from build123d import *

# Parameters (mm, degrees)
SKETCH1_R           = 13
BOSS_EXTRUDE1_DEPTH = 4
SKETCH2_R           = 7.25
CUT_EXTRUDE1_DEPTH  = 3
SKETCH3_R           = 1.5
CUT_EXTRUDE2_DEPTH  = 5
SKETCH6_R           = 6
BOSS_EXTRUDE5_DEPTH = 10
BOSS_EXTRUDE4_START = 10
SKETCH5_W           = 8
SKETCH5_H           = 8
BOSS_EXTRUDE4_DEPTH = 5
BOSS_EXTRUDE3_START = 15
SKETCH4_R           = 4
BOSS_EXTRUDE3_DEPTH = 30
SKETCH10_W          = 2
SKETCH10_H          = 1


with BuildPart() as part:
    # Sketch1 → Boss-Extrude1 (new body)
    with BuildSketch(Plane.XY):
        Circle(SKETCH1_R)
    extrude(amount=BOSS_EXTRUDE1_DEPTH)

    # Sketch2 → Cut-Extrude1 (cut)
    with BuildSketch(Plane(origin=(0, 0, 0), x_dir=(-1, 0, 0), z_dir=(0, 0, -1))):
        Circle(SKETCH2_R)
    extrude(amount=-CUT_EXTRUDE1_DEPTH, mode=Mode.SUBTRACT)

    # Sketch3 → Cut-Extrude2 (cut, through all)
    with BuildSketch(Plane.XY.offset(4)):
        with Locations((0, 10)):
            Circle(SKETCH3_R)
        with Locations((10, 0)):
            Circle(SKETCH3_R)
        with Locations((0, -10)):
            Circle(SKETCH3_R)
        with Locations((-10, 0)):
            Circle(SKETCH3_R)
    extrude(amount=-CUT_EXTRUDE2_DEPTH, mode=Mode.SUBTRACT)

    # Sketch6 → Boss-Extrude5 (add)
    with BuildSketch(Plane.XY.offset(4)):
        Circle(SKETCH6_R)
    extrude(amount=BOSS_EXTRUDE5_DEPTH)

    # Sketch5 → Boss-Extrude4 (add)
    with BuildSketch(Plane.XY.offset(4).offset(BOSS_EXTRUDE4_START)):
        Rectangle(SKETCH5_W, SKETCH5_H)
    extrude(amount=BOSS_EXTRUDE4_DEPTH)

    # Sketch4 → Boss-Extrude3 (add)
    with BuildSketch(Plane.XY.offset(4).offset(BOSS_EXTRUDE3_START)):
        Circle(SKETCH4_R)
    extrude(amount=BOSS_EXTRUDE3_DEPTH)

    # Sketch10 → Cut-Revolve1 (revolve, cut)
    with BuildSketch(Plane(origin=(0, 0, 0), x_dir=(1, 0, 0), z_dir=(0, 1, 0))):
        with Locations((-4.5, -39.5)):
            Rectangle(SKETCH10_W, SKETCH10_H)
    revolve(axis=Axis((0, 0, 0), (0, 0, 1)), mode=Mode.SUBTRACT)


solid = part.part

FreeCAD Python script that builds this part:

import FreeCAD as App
import Part
import Sketcher
from FreeCAD import Vector


def add_polygon(sketch, points):
    """Adds a closed chain of lines whose ends are joined by coincident constraints."""
    first, n = sketch.GeometryCount, len(points)
    for a, b in zip(points, points[1:] + points[:1]):
        sketch.addGeometry(Part.LineSegment(App.Vector(*a, 0), App.Vector(*b, 0)), False)
    for i in range(n):
        sketch.addConstraint(Sketcher.Constraint("Coincident", first + i, 2, first + (i + 1) % n, 1))

doc = App.newDocument("Part")
body = doc.addObject("PartDesign::Body", "Body")

sketch1 = body.newObject("Sketcher::SketchObject", "Sketch")
sketch1.AttachmentSupport = (doc.getObject("XY_Plane"), [""])
sketch1.MapMode = "FlatFace"
sketch1.addGeometry(Part.Circle(Vector(0, 0, 0), Vector(0, 0, 1), 13), False)
sketch1.addConstraint(Sketcher.Constraint("Coincident", 0, 3, -1, 1))
sketch1.addConstraint(Sketcher.Constraint("Diameter", 0, 26.0))
pad1 = body.newObject("PartDesign::Pad", "Pad")
pad1.Profile = sketch1
pad1.Length = 4

sketch2 = body.newObject("Sketcher::SketchObject", "Sketch001")
sketch2.AttachmentSupport = (doc.getObject("XY_Plane"), [""])
sketch2.MapMode = "FlatFace"
sketch2.addGeometry(Part.Circle(Vector(0, 0, 0), Vector(0, 0, 1), 7.25), False)
sketch2.addConstraint(Sketcher.Constraint("Coincident", 0, 3, -1, 1))
sketch2.addConstraint(Sketcher.Constraint("Diameter", 0, 14.5))
pocket1 = body.newObject("PartDesign::Pocket", "Pocket")
pocket1.Profile = sketch2
pocket1.Length = 3
pocket1.Reversed = True

sketch3 = body.newObject("Sketcher::SketchObject", "Sketch002")
sketch3.AttachmentSupport = (doc.getObject("XY_Plane"), [""])
sketch3.MapMode = "FlatFace"
sketch3.AttachmentOffset = App.Placement(Vector(0, 0, 4), App.Rotation())
sketch3.addGeometry(Part.Circle(Vector(0, 10, 0), Vector(0, 0, 1), 1.5), False)
sketch3.addGeometry(Part.Circle(Vector(10, 0, 0), Vector(0, 0, 1), 1.5), False)
sketch3.addGeometry(Part.Circle(Vector(0, -10, 0), Vector(0, 0, 1), 1.5), False)
sketch3.addGeometry(Part.Circle(Vector(-10, 0, 0), Vector(0, 0, 1), 1.5), False)
sketch3.addConstraint(Sketcher.Constraint("Equal", 0, 1))
sketch3.addConstraint(Sketcher.Constraint("Equal", 1, 2))
sketch3.addConstraint(Sketcher.Constraint("Equal", 2, 3))
sketch3.addConstraint(Sketcher.Constraint("Symmetric", 0, 3, 2, 3, -1, 1))
sketch3.addConstraint(Sketcher.Constraint("Symmetric", 1, 3, 3, 3, -1, 1))
sketch3.addConstraint(Sketcher.Constraint("PointOnObject", 0, 3, -2))
sketch3.addConstraint(Sketcher.Constraint("PointOnObject", 1, 3, -1))
sketch3.addConstraint(Sketcher.Constraint("Diameter", 0, 3.0))
sketch3.addConstraint(Sketcher.Constraint("DistanceY", -1, 1, 0, 3, 10.0))
sketch3.addConstraint(Sketcher.Constraint("DistanceX", -1, 1, 1, 3, 10.0))
pocket2 = body.newObject("PartDesign::Pocket", "Pocket001")
pocket2.Profile = sketch3
pocket2.Type = "ThroughAll"

sketch4 = body.newObject("Sketcher::SketchObject", "Sketch003")
sketch4.AttachmentSupport = (doc.getObject("XY_Plane"), [""])
sketch4.MapMode = "FlatFace"
sketch4.AttachmentOffset = App.Placement(Vector(0, 0, 4), App.Rotation())
sketch4.addGeometry(Part.Circle(Vector(0, 0, 0), Vector(0, 0, 1), 6), False)
sketch4.addConstraint(Sketcher.Constraint("Coincident", 0, 3, -1, 1))
sketch4.addConstraint(Sketcher.Constraint("Diameter", 0, 12.0))
pad2 = body.newObject("PartDesign::Pad", "Pad001")
pad2.Profile = sketch4
pad2.Length = 10

sketch5 = body.newObject("Sketcher::SketchObject", "Sketch004")
sketch5.AttachmentSupport = (doc.getObject("XY_Plane"), [""])
sketch5.MapMode = "FlatFace"
sketch5.AttachmentOffset = App.Placement(Vector(0, 0, 14), App.Rotation())
add_polygon(sketch5, [(-4, 4), (-4, -4), (4, -4), (4, 4)])
sketch5.addConstraint(Sketcher.Constraint("Vertical", 0))
sketch5.addConstraint(Sketcher.Constraint("Horizontal", 1))
sketch5.addConstraint(Sketcher.Constraint("Vertical", 2))
sketch5.addConstraint(Sketcher.Constraint("Horizontal", 3))
sketch5.addConstraint(Sketcher.Constraint("Symmetric", 0, 2, 2, 2, -1, 1))
sketch5.addConstraint(Sketcher.Constraint("Equal", 3, 0))
sketch5.addConstraint(Sketcher.Constraint("DistanceX", 1, 1, 1, 2, 8.0))
pad3 = body.newObject("PartDesign::Pad", "Pad002")
pad3.Profile = sketch5
pad3.Length = 5

sketch6 = body.newObject("Sketcher::SketchObject", "Sketch005")
sketch6.AttachmentSupport = (doc.getObject("XY_Plane"), [""])
sketch6.MapMode = "FlatFace"
sketch6.AttachmentOffset = App.Placement(Vector(0, 0, 19), App.Rotation())
sketch6.addGeometry(Part.Circle(Vector(0, 0, 0), Vector(0, 0, 1), 4), False)
sketch6.addConstraint(Sketcher.Constraint("Coincident", 0, 3, -1, 1))
sketch6.addConstraint(Sketcher.Constraint("Diameter", 0, 8.0))
pad4 = body.newObject("PartDesign::Pad", "Pad003")
pad4.Profile = sketch6
pad4.Length = 30

sketch7 = body.newObject("Sketcher::SketchObject", "Sketch006")
sketch7.AttachmentSupport = (doc.getObject("XZ_Plane"), [""])
sketch7.MapMode = "FlatFace"
add_polygon(sketch7, [(-5.5, 39), (-5.5, 40), (-3.5, 40), (-3.5, 39)])
sketch7.addConstraint(Sketcher.Constraint("Vertical", 0))
sketch7.addConstraint(Sketcher.Constraint("Horizontal", 1))
sketch7.addConstraint(Sketcher.Constraint("Vertical", 2))
sketch7.addConstraint(Sketcher.Constraint("Horizontal", 3))
sketch7.addConstraint(Sketcher.Constraint("DistanceX", 1, 1, 1, 2, 2.0))
sketch7.addConstraint(Sketcher.Constraint("DistanceY", 0, 1, 0, 2, 1.0))
sketch7.addConstraint(Sketcher.Constraint("DistanceY", -1, 1, 0, 2, 40.0))
sketch7.addConstraint(Sketcher.Constraint("DistanceX", 0, 2, -1, 1, 5.5))
groove = body.newObject("PartDesign::Groove", "Groove")
groove.Profile = sketch7
groove.ReferenceAxis = (sketch7, ["V_Axis"])
groove.Angle = 360

doc.recompute()
